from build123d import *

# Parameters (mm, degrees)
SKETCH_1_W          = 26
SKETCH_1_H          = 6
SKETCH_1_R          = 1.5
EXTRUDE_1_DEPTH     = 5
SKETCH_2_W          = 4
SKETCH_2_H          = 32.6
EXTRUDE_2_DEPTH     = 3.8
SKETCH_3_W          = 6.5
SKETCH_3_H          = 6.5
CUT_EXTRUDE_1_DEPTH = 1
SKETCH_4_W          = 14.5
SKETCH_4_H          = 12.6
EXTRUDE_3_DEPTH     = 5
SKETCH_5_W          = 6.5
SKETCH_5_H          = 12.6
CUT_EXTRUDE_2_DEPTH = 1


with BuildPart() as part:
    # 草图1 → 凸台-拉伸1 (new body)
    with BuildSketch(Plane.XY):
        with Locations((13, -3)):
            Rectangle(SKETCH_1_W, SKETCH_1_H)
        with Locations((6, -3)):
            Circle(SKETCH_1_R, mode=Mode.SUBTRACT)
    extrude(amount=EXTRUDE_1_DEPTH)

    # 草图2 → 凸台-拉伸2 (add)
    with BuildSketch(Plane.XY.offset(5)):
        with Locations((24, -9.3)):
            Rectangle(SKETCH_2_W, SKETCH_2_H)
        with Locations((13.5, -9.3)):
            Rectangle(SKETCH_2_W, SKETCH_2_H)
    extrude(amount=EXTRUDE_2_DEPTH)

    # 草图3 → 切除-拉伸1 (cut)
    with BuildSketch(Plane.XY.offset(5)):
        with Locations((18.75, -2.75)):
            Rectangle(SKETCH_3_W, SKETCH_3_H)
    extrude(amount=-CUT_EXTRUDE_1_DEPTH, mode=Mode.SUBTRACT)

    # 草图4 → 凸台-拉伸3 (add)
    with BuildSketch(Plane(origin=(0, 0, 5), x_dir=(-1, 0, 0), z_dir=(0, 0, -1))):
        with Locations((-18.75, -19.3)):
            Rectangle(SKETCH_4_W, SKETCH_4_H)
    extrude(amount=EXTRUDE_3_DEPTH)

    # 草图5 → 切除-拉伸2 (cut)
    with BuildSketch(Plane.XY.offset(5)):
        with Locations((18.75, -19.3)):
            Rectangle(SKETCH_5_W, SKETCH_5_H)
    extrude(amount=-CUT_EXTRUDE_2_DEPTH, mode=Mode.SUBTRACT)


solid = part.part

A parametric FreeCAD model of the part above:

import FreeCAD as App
import Part
import Sketcher
from FreeCAD import Vector
Q = App.Units.Quantity


def add_polygon(sketch, points):
    """Adds a closed chain of lines whose ends are joined by coincident constraints."""
    first, n = sketch.GeometryCount, len(points)
    for a, b in zip(points, points[1:] + points[:1]):
        sketch.addGeometry(Part.LineSegment(App.Vector(*a, 0), App.Vector(*b, 0)), False)
    for i in range(n):
        sketch.addConstraint(Sketcher.Constraint("Coincident", first + i, 2, first + (i + 1) % n, 1))

doc = App.newDocument("Part")
body = doc.addObject("PartDesign::Body", "Body")

sketch1 = doc.addObject("Sketcher::SketchObject", "Sketch")
body.addObject(sketch1)
sketch1.AttachmentSupport = (doc.XY_Plane, [""])
sketch1.MapMode = "FlatFace"
add_polygon(sketch1, [(0, 0), (0, -6), (26, -6), (26, 0)])
sketch1.addGeometry(Part.Circle(Vector(6, -3, 0), Vector(0, 0, 1), 1.5), False)
sketch1.addConstraint([
    Sketcher.Constraint("Vertical", 0),
    Sketcher.Constraint("Horizontal", 1),
    Sketcher.Constraint("Vertical", 2),
    Sketcher.Constraint("Horizontal", 3),
    Sketcher.Constraint("Coincident", 3, 2, -1, 1),
    Sketcher.Constraint("Diameter", 4, Q("3 mm")),
    Sketcher.Constraint("DistanceX", 1, 1, 1, 2, Q("26 mm")),
    Sketcher.Constraint("DistanceY", 0, 2, 0, 1, Q("6 mm")),
    Sketcher.Constraint("DistanceX", -1, 1, 4, 3, Q("6 mm")),
    Sketcher.Constraint("DistanceY", 4, 3, -1, 1, Q("3 mm")),
])
pad1 = doc.addObject("PartDesign::Pad", "Pad")
body.addObject(pad1)
pad1.Profile = sketch1
pad1.Length = 5

sketch2 = doc.addObject("Sketcher::SketchObject", "Sketch001")
body.addObject(sketch2)
sketch2.AttachmentSupport = (doc.XY_Plane, [""])
sketch2.MapMode = "FlatFace"
sketch2.AttachmentOffset = App.Placement(Vector(0, 0, 5), App.Rotation())
add_polygon(sketch2, [(22, 7), (22, -25.6), (26, -25.6), (26, 7)])
add_polygon(sketch2, [(11.5, 7), (11.5, -25.6), (15.5, -25.6), (15.5, 7)])
sketch2.addConstraint([
    Sketcher.Constraint("Vertical", 0),
    Sketcher.Constraint("Horizontal", 1),
    Sketcher.Constraint("Vertical", 2),
    Sketcher.Constraint("Horizontal", 3),
    Sketcher.Constraint("Vertical", 4),
    Sketcher.Constraint("Horizontal", 5),
    Sketcher.Constraint("Vertical", 6),
    Sketcher.Constraint("Horizontal", 7),
    Sketcher.Constraint("Horizontal", 1, 2, 4, 2),
    Sketcher.Constraint("Horizontal", 3, 2, 6, 2),
    Sketcher.Constraint("Equal", 3, 5),
    Sketcher.Constraint("DistanceX", 1, 1, 1, 2, Q("4 mm")),
    Sketcher.Constraint("DistanceY", 0, 2, 0, 1, Q("32.6 mm")),
    Sketcher.Constraint("DistanceX", -1, 1, 0, 2, Q("22 mm")),
    Sketcher.Constraint("DistanceY", -1, 1, 2, 2, Q("7 mm")),
    Sketcher.Constraint("DistanceX", -1, 1, 4, 2, Q("11.5 mm")),
])
pad2 = doc.addObject("PartDesign::Pad", "Pad001")
body.addObject(pad2)
pad2.Profile = sketch2
pad2.Length = 3.8

sketch3 = doc.addObject("Sketcher::SketchObject", "Sketch002")
body.addObject(sketch3)
sketch3.AttachmentSupport = (doc.XY_Plane, [""])
sketch3.MapMode = "FlatFace"
sketch3.AttachmentOffset = App.Placement(Vector(0, 0, 5), App.Rotation())
add_polygon(sketch3, [(15.5, 0.5), (15.5, -6), (22, -6), (22, 0.5)])
sketch3.addConstraint([
    Sketcher.Constraint("Vertical", 0),
    Sketcher.Constraint("Horizontal", 1),
    Sketcher.Constraint("Vertical", 2),
    Sketcher.Constraint("Horizontal", 3),
    Sketcher.Constraint("Equal", 3, 0),
    Sketcher.Constraint("DistanceX", 1, 1, 1, 2, Q("6.5 mm")),
    Sketcher.Constraint("DistanceY", 0, 2, -1, 1, Q("6 mm")),
    Sketcher.Constraint("DistanceX", -1, 1, 1, 2, Q("22 mm")),
])
pocket1 = doc.addObject("PartDesign::Pocket", "Pocket")
body.addObject(pocket1)
pocket1.Profile = sketch3
pocket1.Length = 1

sketch4 = doc.addObject("Sketcher::SketchObject", "Sketch003")
body.addObject(sketch4)
sketch4.AttachmentSupport = (doc.XY_Plane, [""])
sketch4.MapMode = "FlatFace"
sketch4.AttachmentOffset = App.Placement(Vector(0, 0, 5), App.Rotation())
add_polygon(sketch4, [(26, -13), (26, -25.6), (11.5, -25.6), (11.5, -13)])
sketch4.addConstraint([
    Sketcher.Constraint("Vertical", 0),
    Sketcher.Constraint("Horizontal", 1),
    Sketcher.Constraint("Vertical", 2),
    Sketcher.Constraint("Horizontal", 3),
    Sketcher.Constraint("DistanceX", 1, 2, 1, 1, Q("14.5 mm")),
    Sketcher.Constraint("DistanceY", 0, 2, 0, 1, Q("12.6 mm")),
    Sketcher.Constraint("DistanceX", -1, 1, 0, 2, Q("26 mm")),
    Sketcher.Constraint("DistanceY", 2, 2, -1, 1, Q("13 mm")),
])
pad3 = doc.addObject("PartDesign::Pad", "Pad002")
body.addObject(pad3)
pad3.Profile = sketch4
pad3.Length = 5
pad3.Reversed = True

sketch5 = doc.addObject("Sketcher::SketchObject", "Sketch004")
body.addObject(sketch5)
sketch5.AttachmentSupport = (doc.XY_Plane, [""])
sketch5.MapMode = "FlatFace"
sketch5.AttachmentOffset = App.Placement(Vector(0, 0, 5), App.Rotation())
add_polygon(sketch5, [(15.5, -13), (15.5, -25.6), (22, -25.6), (22, -13)])
sketch5.addConstraint([
    Sketcher.Constraint("Vertical", 0),
    Sketcher.Constraint("Horizontal", 1),
    Sketcher.Constraint("Vertical", 2),
    Sketcher.Constraint("Horizontal", 3),
    Sketcher.Constraint("DistanceX", 1, 1, 1, 2, Q("6.5 mm")),
    Sketcher.Constraint("DistanceY", 0, 2, 0, 1, Q("12.6 mm")),
    Sketcher.Constraint("DistanceX", -1, 1, 1, 2, Q("22 mm")),
    Sketcher.Constraint("DistanceY", 2, 2, -1, 1, Q("13 mm")),
])
pocket2 = doc.addObject("PartDesign::Pocket", "Pocket001")
body.addObject(pocket2)
pocket2.Profile = sketch5
pocket2.Length = 1

doc.recompute()
